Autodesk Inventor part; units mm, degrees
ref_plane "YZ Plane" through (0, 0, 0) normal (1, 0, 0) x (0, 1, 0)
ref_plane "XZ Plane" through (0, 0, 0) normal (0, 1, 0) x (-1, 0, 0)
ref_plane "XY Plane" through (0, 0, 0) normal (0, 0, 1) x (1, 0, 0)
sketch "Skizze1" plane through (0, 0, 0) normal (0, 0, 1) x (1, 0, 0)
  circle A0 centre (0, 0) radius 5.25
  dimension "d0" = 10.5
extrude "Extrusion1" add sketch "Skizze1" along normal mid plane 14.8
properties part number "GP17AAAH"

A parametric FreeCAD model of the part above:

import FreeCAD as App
import Part
import Sketcher
from FreeCAD import Vector
Q = App.Units.Quantity

doc = App.newDocument("Part")
body = doc.addObject("PartDesign::Body", "Body")

# Sketch on XY plane
sketch1 = body.newObject("Sketcher::SketchObject", "Sketch")
sketch1.AttachmentSupport = (doc.getObject("XY_Plane"), [""])
sketch1.MapMode = "FlatFace"
sketch1.addGeometry(Part.Circle(Vector(0, 0, 0), Vector(0, 0, 1), 5.25), False)
sketch1.addConstraint(Sketcher.Constraint("Coincident", 0, 3, -1, 1))
sketch1.addConstraint(Sketcher.Constraint("Diameter", 0, Q("10.5 mm")))
pad1 = body.newObject("PartDesign::Pad", "Pad")
pad1.Profile = sketch1
pad1.Length = 14.8
pad1.Midplane = True

doc.recompute()
